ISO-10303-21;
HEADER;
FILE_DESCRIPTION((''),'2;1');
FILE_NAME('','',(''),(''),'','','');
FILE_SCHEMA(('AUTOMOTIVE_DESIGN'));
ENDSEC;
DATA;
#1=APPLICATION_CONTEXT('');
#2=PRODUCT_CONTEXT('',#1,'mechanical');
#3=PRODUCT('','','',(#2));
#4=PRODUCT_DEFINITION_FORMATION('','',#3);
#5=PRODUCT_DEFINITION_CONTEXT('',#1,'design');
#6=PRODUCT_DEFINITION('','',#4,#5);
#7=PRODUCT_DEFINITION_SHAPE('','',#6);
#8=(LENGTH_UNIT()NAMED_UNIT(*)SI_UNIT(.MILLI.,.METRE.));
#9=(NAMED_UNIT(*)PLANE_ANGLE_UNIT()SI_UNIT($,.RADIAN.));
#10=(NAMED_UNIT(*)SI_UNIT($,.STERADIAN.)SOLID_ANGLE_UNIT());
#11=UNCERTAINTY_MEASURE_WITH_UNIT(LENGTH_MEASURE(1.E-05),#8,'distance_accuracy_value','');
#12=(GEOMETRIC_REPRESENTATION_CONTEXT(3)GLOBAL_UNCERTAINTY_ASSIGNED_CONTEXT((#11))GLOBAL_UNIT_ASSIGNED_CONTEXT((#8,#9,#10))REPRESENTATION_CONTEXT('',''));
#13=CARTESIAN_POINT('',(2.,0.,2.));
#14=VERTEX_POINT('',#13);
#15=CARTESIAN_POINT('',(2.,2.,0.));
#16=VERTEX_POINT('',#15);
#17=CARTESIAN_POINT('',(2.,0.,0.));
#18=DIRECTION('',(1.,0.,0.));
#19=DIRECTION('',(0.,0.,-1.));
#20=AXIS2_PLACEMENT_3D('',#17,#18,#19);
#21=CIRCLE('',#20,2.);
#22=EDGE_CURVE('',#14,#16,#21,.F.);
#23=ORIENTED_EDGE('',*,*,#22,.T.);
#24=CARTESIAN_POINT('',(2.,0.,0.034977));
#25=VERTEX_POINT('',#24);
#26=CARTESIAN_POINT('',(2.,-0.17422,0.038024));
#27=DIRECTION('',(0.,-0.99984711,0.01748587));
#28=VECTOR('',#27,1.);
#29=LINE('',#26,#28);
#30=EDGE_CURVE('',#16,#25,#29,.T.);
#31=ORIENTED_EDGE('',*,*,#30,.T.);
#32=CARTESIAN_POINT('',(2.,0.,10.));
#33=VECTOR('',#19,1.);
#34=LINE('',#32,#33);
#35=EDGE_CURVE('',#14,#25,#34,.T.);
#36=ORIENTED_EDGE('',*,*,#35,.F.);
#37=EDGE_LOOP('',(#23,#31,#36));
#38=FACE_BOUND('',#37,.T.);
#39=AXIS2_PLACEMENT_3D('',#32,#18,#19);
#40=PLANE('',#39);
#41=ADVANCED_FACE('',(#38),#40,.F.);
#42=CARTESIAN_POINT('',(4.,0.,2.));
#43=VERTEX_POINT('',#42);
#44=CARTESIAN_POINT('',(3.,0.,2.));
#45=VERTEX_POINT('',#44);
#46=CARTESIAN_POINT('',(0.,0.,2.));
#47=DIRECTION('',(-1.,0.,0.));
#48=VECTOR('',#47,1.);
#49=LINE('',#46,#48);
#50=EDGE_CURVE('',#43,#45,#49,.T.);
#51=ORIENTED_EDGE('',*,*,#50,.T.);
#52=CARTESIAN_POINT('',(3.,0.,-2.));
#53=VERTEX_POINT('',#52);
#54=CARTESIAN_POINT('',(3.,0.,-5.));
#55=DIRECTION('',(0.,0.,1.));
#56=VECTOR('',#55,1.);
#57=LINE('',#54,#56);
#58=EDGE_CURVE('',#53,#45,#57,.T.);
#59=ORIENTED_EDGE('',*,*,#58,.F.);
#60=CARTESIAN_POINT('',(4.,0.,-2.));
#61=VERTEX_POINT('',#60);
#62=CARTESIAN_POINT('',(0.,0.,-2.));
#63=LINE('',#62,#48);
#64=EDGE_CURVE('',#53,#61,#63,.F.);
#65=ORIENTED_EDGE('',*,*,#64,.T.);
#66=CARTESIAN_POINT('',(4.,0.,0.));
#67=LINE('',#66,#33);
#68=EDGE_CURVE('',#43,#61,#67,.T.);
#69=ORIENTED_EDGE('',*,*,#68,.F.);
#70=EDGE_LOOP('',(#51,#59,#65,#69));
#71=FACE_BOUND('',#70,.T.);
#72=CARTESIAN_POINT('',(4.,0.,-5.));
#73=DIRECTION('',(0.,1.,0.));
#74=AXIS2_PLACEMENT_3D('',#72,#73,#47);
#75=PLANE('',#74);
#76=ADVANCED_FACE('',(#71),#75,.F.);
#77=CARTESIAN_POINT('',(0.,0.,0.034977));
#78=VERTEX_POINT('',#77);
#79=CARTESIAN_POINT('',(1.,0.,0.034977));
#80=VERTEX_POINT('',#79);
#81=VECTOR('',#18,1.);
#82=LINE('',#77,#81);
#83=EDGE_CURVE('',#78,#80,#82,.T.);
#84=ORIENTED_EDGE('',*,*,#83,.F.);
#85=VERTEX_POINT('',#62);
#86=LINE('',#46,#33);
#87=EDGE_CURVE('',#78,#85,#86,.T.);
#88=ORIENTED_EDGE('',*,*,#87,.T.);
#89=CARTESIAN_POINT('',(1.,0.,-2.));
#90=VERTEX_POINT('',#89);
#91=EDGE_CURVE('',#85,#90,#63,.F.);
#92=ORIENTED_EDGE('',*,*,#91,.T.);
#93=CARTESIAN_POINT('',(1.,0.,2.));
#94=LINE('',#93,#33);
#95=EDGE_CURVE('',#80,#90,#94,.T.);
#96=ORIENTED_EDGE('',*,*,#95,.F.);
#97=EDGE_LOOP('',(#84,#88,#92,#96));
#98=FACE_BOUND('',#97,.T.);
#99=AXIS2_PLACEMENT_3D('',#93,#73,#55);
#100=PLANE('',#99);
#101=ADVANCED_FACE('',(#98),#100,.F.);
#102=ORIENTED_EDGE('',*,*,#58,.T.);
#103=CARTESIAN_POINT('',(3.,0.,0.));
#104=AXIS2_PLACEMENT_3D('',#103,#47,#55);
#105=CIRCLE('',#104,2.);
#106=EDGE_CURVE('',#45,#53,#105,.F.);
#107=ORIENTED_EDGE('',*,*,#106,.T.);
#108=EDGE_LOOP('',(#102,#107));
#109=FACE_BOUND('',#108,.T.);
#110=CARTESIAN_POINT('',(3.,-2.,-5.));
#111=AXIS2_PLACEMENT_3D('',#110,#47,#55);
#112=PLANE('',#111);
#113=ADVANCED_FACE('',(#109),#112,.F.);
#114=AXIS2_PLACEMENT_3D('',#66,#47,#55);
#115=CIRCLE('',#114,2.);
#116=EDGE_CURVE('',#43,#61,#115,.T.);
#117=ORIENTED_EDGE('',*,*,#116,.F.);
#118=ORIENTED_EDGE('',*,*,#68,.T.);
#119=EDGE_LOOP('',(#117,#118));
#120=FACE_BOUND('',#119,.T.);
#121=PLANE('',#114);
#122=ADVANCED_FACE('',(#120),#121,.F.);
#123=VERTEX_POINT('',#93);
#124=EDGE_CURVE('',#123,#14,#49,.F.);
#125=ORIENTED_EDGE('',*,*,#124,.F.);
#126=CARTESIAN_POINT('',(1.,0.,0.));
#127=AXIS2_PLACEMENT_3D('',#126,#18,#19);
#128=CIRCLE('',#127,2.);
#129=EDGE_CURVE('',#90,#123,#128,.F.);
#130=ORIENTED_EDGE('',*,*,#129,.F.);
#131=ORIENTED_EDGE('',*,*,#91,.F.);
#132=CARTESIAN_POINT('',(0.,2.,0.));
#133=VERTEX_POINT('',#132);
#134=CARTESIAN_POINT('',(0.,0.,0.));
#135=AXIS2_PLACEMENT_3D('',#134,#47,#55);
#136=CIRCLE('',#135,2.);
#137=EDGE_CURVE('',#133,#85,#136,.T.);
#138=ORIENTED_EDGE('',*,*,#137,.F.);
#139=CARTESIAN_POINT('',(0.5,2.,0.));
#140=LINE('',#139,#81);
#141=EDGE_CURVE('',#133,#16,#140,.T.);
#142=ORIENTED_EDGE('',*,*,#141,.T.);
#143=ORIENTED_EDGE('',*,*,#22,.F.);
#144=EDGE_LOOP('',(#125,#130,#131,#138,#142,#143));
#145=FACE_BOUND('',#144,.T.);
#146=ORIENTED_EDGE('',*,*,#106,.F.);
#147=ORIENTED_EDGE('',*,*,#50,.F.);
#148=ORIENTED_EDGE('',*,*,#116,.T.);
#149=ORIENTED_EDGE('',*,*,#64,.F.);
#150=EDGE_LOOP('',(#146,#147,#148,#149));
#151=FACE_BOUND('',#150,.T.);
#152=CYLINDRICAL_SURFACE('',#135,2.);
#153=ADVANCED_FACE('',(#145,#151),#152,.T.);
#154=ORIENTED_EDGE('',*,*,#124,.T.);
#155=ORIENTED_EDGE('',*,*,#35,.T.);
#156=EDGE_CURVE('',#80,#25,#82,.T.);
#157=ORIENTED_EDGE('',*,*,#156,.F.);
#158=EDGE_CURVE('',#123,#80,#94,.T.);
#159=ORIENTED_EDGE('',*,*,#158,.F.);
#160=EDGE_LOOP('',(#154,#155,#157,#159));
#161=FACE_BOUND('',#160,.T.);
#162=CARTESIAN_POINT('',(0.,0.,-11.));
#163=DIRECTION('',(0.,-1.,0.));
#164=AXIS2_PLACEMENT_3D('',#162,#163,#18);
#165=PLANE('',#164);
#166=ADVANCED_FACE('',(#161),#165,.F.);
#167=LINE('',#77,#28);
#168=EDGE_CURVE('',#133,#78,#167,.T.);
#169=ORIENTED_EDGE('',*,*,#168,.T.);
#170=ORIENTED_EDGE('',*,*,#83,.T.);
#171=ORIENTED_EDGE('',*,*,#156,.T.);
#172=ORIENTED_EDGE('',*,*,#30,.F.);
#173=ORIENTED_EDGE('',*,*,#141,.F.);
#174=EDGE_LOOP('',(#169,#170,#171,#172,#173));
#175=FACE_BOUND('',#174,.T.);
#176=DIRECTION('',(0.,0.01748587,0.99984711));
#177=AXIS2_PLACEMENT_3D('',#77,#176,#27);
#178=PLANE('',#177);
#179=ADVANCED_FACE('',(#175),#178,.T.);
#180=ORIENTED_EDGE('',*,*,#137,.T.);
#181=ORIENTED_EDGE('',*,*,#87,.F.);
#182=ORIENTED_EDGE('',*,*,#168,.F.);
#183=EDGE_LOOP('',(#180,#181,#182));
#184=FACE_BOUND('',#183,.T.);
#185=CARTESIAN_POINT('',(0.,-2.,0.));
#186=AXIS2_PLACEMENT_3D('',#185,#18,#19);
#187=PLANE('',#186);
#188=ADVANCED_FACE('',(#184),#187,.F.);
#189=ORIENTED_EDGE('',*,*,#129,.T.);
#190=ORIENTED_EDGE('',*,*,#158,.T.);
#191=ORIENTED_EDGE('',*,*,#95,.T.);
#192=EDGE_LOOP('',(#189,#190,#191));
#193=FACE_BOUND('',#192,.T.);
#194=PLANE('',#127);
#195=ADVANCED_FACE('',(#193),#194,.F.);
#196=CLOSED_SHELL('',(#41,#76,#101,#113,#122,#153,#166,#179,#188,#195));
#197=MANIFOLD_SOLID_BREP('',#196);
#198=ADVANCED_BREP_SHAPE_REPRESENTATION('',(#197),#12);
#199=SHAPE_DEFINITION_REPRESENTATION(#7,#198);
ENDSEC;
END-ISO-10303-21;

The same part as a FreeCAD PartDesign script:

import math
import FreeCAD as App
import Part
import Sketcher

V = App.Vector
Q = App.Units.Quantity

doc = App.newDocument("Part")
body = doc.addObject("PartDesign::Body", "Body")

# Sketch on XY plane
sketch1 = body.newObject("Sketcher::SketchObject", "Sketch")
sketch1.AttachmentSupport = (doc.getObject("XY_Plane"), [""])
sketch1.MapMode = "FlatFace"
sketch1.addGeometry(Part.LineSegment(V(0, 2, 0), V(0, 0, 0)), False)
sketch1.addGeometry(Part.LineSegment(V(0, 0, 0), V(4, 0, 0)), False)
sketch1.addGeometry(Part.LineSegment(V(4, 0, 0), V(4, 2, 0)), False)
sketch1.addGeometry(Part.LineSegment(V(4, 2, 0), V(0, 2, 0)), False)
sketch1.addConstraint(Sketcher.Constraint("Coincident", 0, 2, 1, 1))
sketch1.addConstraint(Sketcher.Constraint("Coincident", 1, 2, 2, 1))
sketch1.addConstraint(Sketcher.Constraint("Coincident", 2, 2, 3, 1))
sketch1.addConstraint(Sketcher.Constraint("Coincident", 3, 2, 0, 1))
sketch1.addConstraint(Sketcher.Constraint("Vertical", 0))
sketch1.addConstraint(Sketcher.Constraint("Horizontal", 1))
sketch1.addConstraint(Sketcher.Constraint("Vertical", 2))
sketch1.addConstraint(Sketcher.Constraint("Horizontal", 3))
sketch1.addConstraint(Sketcher.Constraint("Coincident", 0, 2, -1, 1))
sketch1.addConstraint(Sketcher.Constraint("DistanceX", 1, 1, 1, 2, Q("4 mm")))
sketch1.addConstraint(Sketcher.Constraint("DistanceY", 0, 2, 0, 1, Q("2 mm")))
revolution = body.newObject("PartDesign::Revolution", "Revolution")
revolution.Profile = sketch1
revolution.ReferenceAxis = (sketch1, ["H_Axis"])
revolution.Angle = 360

# Sketch on XY plane
sketch2 = body.newObject("Sketcher::SketchObject", "Sketch001")
sketch2.AttachmentSupport = (doc.getObject("XY_Plane"), [""])
sketch2.MapMode = "FlatFace"
sketch2.addGeometry(Part.LineSegment(V(3, 2, 0), V(3, 0, 0)), False)
sketch2.addGeometry(Part.LineSegment(V(3, 0, 0), V(4, 0, 0)), False)
sketch2.addGeometry(Part.LineSegment(V(4, 0, 0), V(4, 2, 0)), False)
sketch2.addGeometry(Part.LineSegment(V(4, 2, 0), V(3, 2, 0)), False)
sketch2.addGeometry(Part.LineSegment(V(0, 2, 0), V(0, 0, 0)), False)
sketch2.addGeometry(Part.LineSegment(V(0, 0, 0), V(1, 0, 0)), False)
sketch2.addGeometry(Part.LineSegment(V(1, 0, 0), V(1, 2, 0)), False)
sketch2.addGeometry(Part.LineSegment(V(1, 2, 0), V(0, 2, 0)), False)
sketch2.addConstraint(Sketcher.Constraint("Coincident", 0, 2, 1, 1))
sketch2.addConstraint(Sketcher.Constraint("Coincident", 1, 2, 2, 1))
sketch2.addConstraint(Sketcher.Constraint("Coincident", 2, 2, 3, 1))
sketch2.addConstraint(Sketcher.Constraint("Coincident", 3, 2, 0, 1))
sketch2.addConstraint(Sketcher.Constraint("Coincident", 4, 2, 5, 1))
sketch2.addConstraint(Sketcher.Constraint("Coincident", 5, 2, 6, 1))
sketch2.addConstraint(Sketcher.Constraint("Coincident", 6, 2, 7, 1))
sketch2.addConstraint(Sketcher.Constraint("Coincident", 7, 2, 4, 1))
sketch2.addConstraint(Sketcher.Constraint("Vertical", 0))
sketch2.addConstraint(Sketcher.Constraint("Horizontal", 1))
sketch2.addConstraint(Sketcher.Constraint("Vertical", 2))
sketch2.addConstraint(Sketcher.Constraint("Horizontal", 3))
sketch2.addConstraint(Sketcher.Constraint("Vertical", 4))
sketch2.addConstraint(Sketcher.Constraint("Horizontal", 5))
sketch2.addConstraint(Sketcher.Constraint("Vertical", 6))
sketch2.addConstraint(Sketcher.Constraint("Horizontal", 7))
sketch2.addConstraint(Sketcher.Constraint("Coincident", 4, 2, -1, 1))
sketch2.addConstraint(Sketcher.Constraint("PointOnObject", 0, 2, -1))
sketch2.addConstraint(Sketcher.Constraint("Horizontal", 3, 2, 6, 2))
sketch2.addConstraint(Sketcher.Constraint("Equal", 3, 5))
sketch2.addConstraint(Sketcher.Constraint("DistanceX", 1, 1, 1, 2, Q("1 mm")))
sketch2.addConstraint(Sketcher.Constraint("DistanceY", 0, 2, 0, 1, Q("2 mm")))
sketch2.addConstraint(Sketcher.Constraint("DistanceX", -1, 1, 0, 2, Q("3 mm")))
pocket1 = body.newObject("PartDesign::Pocket", "Pocket")
pocket1.Profile = sketch2
pocket1.Length = 11

# Sketch on XY plane
sketch3 = body.newObject("Sketcher::SketchObject", "Sketch002")
sketch3.AttachmentSupport = (doc.getObject("XY_Plane"), [""])
sketch3.MapMode = "FlatFace"
sketch3.addGeometry(Part.LineSegment(V(0.5, 2, 0), V(0.5, 0, 0)), False)
sketch3.addGeometry(Part.LineSegment(V(0.5, 0, 0), V(0, 0, 0)), False)
sketch3.addGeometry(Part.LineSegment(V(0, 0, 0), V(0, 2, 0)), False)
sketch3.addGeometry(Part.LineSegment(V(0, 2, 0), V(0.5, 2, 0)), False)
sketch3.addConstraint(Sketcher.Constraint("Coincident", 0, 2, 1, 1))
sketch3.addConstraint(Sketcher.Constraint("Coincident", 1, 2, 2, 1))
sketch3.addConstraint(Sketcher.Constraint("Coincident", 2, 2, 3, 1))
sketch3.addConstraint(Sketcher.Constraint("Coincident", 3, 2, 0, 1))
sketch3.addConstraint(Sketcher.Constraint("Vertical", 0))
sketch3.addConstraint(Sketcher.Constraint("Horizontal", 1))
sketch3.addConstraint(Sketcher.Constraint("Vertical", 2))
sketch3.addConstraint(Sketcher.Constraint("Horizontal", 3))
sketch3.addConstraint(Sketcher.Constraint("Coincident", 1, 2, -1, 1))
sketch3.addConstraint(Sketcher.Constraint("DistanceY", 0, 2, 0, 1, Q("2 mm")))
sketch3.addConstraint(Sketcher.Constraint("DistanceX", 1, 2, 1, 1, Q("0.5 mm")))
pocket2 = body.newObject("PartDesign::Pocket", "Pocket001")
pocket2.Profile = sketch3
pocket2.Length = 10
pocket2.Reversed = True

# Sketch on XY plane
sketch4 = body.newObject("Sketcher::SketchObject", "Sketch003")
sketch4.AttachmentSupport = (doc.getObject("XY_Plane"), [""])
sketch4.MapMode = "FlatFace"
sketch4.addGeometry(Part.LineSegment(V(2, 2, 0), V(2, 0, 0)), False)
sketch4.addGeometry(Part.LineSegment(V(2, 0, 0), V(0.5, 0, 0)), False)
sketch4.addGeometry(Part.LineSegment(V(0.5, 0, 0), V(0.5, 2, 0)), False)
sketch4.addGeometry(Part.LineSegment(V(0.5, 2, 0), V(2, 2, 0)), False)
sketch4.addConstraint(Sketcher.Constraint("Coincident", 0, 2, 1, 1))
sketch4.addConstraint(Sketcher.Constraint("Coincident", 1, 2, 2, 1))
sketch4.addConstraint(Sketcher.Constraint("Coincident", 2, 2, 3, 1))
sketch4.addConstraint(Sketcher.Constraint("Coincident", 3, 2, 0, 1))
sketch4.addConstraint(Sketcher.Constraint("Vertical", 0))
sketch4.addConstraint(Sketcher.Constraint("Horizontal", 1))
sketch4.addConstraint(Sketcher.Constraint("Vertical", 2))
sketch4.addConstraint(Sketcher.Constraint("Horizontal", 3))
sketch4.addConstraint(Sketcher.Constraint("PointOnObject", 0, 2, -1))
sketch4.addConstraint(Sketcher.Constraint("DistanceY", 0, 2, 0, 1, Q("2 mm")))
sketch4.addConstraint(Sketcher.Constraint("DistanceX", 1, 2, 1, 1, Q("1.5 mm")))
sketch4.addConstraint(Sketcher.Constraint("DistanceX", -1, 1, 0, 2, Q("2 mm")))
pocket3 = body.newObject("PartDesign::Pocket", "Pocket002")
pocket3.Profile = sketch4
pocket3.Length = 10
pocket3.Reversed = True

# Sketch on YZ plane
sketch5 = body.newObject("Sketcher::SketchObject", "Sketch004")
sketch5.AttachmentSupport = (doc.getObject("YZ_Plane"), [""])
sketch5.MapMode = "FlatFace"
sketch5.AttachmentOffset = App.Placement(V(0, 0, 4), App.Rotation())
sketch5.addGeometry(Part.LineSegment(V(0, 0, 0), V(0, -2, 0)), False)
sketch5.addGeometry(Part.ArcOfCircle(Part.Circle(V(0, 0, 0), V(0, 0, 1), 2), math.radians(-90), math.radians(0)), False)
sketch5.addGeometry(Part.LineSegment(V(2, 0, 0), V(0, 0, 0)), False)
sketch5.addConstraint(Sketcher.Constraint("Coincident", 0, 2, 1, 1))
sketch5.addConstraint(Sketcher.Constraint("Coincident", 1, 2, 2, 1))
sketch5.addConstraint(Sketcher.Constraint("Coincident", 2, 2, 0, 1))
sketch5.addConstraint(Sketcher.Constraint("Vertical", 0))
sketch5.addConstraint(Sketcher.Constraint("Coincident", 1, 3, -1, 1))
sketch5.addConstraint(Sketcher.Constraint("PointOnObject", 0, 2, -2))
sketch5.addConstraint(Sketcher.Constraint("PointOnObject", 1, 2, -1))
sketch5.addConstraint(Sketcher.Constraint("Radius", 1, Q("2 mm")))
sketch5.addConstraint(Sketcher.Constraint("DistanceY", 0, 2, 0, 1, Q("2.034977 mm")))
pad1 = body.newObject("PartDesign::Pad", "Pad")
pad1.Profile = sketch5
pad1.Length = 4
pad1.Reversed = True

# Sketch on YZ plane
sketch6 = body.newObject("Sketcher::SketchObject", "Sketch005")
sketch6.AttachmentSupport = (doc.getObject("YZ_Plane"), [""])
sketch6.MapMode = "FlatFace"
sketch6.addGeometry(Part.LineSegment(V(0, -2.4, 0), V(-3.2, -2.4, 0)), False)
sketch6.addGeometry(Part.LineSegment(V(-3.2, -2.4, 0), V(-3.2, 2, 0)), False)
sketch6.addGeometry(Part.LineSegment(V(-3.2, 2, 0), V(0, 2, 0)), False)
sketch6.addGeometry(Part.LineSegment(V(0, 2, 0), V(0, -2.4, 0)), False)
sketch6.addConstraint(Sketcher.Constraint("Coincident", 0, 2, 1, 1))
sketch6.addConstraint(Sketcher.Constraint("Coincident", 1, 2, 2, 1))
sketch6.addConstraint(Sketcher.Constraint("Coincident", 2, 2, 3, 1))
sketch6.addConstraint(Sketcher.Constraint("Coincident", 3, 2, 0, 1))
sketch6.addConstraint(Sketcher.Constraint("Horizontal", 0))
sketch6.addConstraint(Sketcher.Constraint("Vertical", 1))
sketch6.addConstraint(Sketcher.Constraint("Horizontal", 2))
sketch6.addConstraint(Sketcher.Constraint("Vertical", 3))
sketch6.addConstraint(Sketcher.Constraint("PointOnObject", 2, 2, -2))
sketch6.addConstraint(Sketcher.Constraint("DistanceY", -1, 1, 1, 2, Q("2 mm")))
sketch6.addConstraint(Sketcher.Constraint("DistanceX", 0, 2, 0, 1, Q("3.198189 mm")))
sketch6.addConstraint(Sketcher.Constraint("DistanceY", 1, 1, 1, 2, Q("4.449871 mm")))
pocket4 = body.newObject("PartDesign::Pocket", "Pocket003")
pocket4.Profile = sketch6
pocket4.Length = 1
pocket4.Reversed = True

# Sketch on XY plane
sketch7 = body.newObject("Sketcher::SketchObject", "Sketch006")
sketch7.AttachmentSupport = (doc.getObject("XY_Plane"), [""])
sketch7.MapMode = "FlatFace"
sketch7.addGeometry(Part.LineSegment(V(3, 0, 0), V(3, -2, 0)), False)
sketch7.addGeometry(Part.LineSegment(V(3, -2, 0), V(4, -2, 0)), False)
sketch7.addGeometry(Part.LineSegment(V(4, -2, 0), V(4, 0, 0)), False)
sketch7.addGeometry(Part.LineSegment(V(4, 0, 0), V(3, 0, 0)), False)
sketch7.addConstraint(Sketcher.Constraint("Coincident", 0, 2, 1, 1))
sketch7.addConstraint(Sketcher.Constraint("Coincident", 1, 2, 2, 1))
sketch7.addConstraint(Sketcher.Constraint("Coincident", 2, 2, 3, 1))
sketch7.addConstraint(Sketcher.Constraint("Coincident", 3, 2, 0, 1))
sketch7.addConstraint(Sketcher.Constraint("Vertical", 0))
sketch7.addConstraint(Sketcher.Constraint("Horizontal", 1))
sketch7.addConstraint(Sketcher.Constraint("Vertical", 2))
sketch7.addConstraint(Sketcher.Constraint("Horizontal", 3))
sketch7.addConstraint(Sketcher.Constraint("PointOnObject", 2, 2, -1))
sketch7.addConstraint(Sketcher.Constraint("DistanceX", 1, 1, 1, 2, Q("1 mm")))
sketch7.addConstraint(Sketcher.Constraint("DistanceY", 0, 2, 0, 1, Q("2 mm")))
sketch7.addConstraint(Sketcher.Constraint("DistanceX", -1, 1, 0, 2, Q("3 mm")))
pocket5 = body.newObject("PartDesign::Pocket", "Pocket004")
pocket5.Profile = sketch7
pocket5.Length = 10
pocket5.Midplane = True

doc.recompute()
